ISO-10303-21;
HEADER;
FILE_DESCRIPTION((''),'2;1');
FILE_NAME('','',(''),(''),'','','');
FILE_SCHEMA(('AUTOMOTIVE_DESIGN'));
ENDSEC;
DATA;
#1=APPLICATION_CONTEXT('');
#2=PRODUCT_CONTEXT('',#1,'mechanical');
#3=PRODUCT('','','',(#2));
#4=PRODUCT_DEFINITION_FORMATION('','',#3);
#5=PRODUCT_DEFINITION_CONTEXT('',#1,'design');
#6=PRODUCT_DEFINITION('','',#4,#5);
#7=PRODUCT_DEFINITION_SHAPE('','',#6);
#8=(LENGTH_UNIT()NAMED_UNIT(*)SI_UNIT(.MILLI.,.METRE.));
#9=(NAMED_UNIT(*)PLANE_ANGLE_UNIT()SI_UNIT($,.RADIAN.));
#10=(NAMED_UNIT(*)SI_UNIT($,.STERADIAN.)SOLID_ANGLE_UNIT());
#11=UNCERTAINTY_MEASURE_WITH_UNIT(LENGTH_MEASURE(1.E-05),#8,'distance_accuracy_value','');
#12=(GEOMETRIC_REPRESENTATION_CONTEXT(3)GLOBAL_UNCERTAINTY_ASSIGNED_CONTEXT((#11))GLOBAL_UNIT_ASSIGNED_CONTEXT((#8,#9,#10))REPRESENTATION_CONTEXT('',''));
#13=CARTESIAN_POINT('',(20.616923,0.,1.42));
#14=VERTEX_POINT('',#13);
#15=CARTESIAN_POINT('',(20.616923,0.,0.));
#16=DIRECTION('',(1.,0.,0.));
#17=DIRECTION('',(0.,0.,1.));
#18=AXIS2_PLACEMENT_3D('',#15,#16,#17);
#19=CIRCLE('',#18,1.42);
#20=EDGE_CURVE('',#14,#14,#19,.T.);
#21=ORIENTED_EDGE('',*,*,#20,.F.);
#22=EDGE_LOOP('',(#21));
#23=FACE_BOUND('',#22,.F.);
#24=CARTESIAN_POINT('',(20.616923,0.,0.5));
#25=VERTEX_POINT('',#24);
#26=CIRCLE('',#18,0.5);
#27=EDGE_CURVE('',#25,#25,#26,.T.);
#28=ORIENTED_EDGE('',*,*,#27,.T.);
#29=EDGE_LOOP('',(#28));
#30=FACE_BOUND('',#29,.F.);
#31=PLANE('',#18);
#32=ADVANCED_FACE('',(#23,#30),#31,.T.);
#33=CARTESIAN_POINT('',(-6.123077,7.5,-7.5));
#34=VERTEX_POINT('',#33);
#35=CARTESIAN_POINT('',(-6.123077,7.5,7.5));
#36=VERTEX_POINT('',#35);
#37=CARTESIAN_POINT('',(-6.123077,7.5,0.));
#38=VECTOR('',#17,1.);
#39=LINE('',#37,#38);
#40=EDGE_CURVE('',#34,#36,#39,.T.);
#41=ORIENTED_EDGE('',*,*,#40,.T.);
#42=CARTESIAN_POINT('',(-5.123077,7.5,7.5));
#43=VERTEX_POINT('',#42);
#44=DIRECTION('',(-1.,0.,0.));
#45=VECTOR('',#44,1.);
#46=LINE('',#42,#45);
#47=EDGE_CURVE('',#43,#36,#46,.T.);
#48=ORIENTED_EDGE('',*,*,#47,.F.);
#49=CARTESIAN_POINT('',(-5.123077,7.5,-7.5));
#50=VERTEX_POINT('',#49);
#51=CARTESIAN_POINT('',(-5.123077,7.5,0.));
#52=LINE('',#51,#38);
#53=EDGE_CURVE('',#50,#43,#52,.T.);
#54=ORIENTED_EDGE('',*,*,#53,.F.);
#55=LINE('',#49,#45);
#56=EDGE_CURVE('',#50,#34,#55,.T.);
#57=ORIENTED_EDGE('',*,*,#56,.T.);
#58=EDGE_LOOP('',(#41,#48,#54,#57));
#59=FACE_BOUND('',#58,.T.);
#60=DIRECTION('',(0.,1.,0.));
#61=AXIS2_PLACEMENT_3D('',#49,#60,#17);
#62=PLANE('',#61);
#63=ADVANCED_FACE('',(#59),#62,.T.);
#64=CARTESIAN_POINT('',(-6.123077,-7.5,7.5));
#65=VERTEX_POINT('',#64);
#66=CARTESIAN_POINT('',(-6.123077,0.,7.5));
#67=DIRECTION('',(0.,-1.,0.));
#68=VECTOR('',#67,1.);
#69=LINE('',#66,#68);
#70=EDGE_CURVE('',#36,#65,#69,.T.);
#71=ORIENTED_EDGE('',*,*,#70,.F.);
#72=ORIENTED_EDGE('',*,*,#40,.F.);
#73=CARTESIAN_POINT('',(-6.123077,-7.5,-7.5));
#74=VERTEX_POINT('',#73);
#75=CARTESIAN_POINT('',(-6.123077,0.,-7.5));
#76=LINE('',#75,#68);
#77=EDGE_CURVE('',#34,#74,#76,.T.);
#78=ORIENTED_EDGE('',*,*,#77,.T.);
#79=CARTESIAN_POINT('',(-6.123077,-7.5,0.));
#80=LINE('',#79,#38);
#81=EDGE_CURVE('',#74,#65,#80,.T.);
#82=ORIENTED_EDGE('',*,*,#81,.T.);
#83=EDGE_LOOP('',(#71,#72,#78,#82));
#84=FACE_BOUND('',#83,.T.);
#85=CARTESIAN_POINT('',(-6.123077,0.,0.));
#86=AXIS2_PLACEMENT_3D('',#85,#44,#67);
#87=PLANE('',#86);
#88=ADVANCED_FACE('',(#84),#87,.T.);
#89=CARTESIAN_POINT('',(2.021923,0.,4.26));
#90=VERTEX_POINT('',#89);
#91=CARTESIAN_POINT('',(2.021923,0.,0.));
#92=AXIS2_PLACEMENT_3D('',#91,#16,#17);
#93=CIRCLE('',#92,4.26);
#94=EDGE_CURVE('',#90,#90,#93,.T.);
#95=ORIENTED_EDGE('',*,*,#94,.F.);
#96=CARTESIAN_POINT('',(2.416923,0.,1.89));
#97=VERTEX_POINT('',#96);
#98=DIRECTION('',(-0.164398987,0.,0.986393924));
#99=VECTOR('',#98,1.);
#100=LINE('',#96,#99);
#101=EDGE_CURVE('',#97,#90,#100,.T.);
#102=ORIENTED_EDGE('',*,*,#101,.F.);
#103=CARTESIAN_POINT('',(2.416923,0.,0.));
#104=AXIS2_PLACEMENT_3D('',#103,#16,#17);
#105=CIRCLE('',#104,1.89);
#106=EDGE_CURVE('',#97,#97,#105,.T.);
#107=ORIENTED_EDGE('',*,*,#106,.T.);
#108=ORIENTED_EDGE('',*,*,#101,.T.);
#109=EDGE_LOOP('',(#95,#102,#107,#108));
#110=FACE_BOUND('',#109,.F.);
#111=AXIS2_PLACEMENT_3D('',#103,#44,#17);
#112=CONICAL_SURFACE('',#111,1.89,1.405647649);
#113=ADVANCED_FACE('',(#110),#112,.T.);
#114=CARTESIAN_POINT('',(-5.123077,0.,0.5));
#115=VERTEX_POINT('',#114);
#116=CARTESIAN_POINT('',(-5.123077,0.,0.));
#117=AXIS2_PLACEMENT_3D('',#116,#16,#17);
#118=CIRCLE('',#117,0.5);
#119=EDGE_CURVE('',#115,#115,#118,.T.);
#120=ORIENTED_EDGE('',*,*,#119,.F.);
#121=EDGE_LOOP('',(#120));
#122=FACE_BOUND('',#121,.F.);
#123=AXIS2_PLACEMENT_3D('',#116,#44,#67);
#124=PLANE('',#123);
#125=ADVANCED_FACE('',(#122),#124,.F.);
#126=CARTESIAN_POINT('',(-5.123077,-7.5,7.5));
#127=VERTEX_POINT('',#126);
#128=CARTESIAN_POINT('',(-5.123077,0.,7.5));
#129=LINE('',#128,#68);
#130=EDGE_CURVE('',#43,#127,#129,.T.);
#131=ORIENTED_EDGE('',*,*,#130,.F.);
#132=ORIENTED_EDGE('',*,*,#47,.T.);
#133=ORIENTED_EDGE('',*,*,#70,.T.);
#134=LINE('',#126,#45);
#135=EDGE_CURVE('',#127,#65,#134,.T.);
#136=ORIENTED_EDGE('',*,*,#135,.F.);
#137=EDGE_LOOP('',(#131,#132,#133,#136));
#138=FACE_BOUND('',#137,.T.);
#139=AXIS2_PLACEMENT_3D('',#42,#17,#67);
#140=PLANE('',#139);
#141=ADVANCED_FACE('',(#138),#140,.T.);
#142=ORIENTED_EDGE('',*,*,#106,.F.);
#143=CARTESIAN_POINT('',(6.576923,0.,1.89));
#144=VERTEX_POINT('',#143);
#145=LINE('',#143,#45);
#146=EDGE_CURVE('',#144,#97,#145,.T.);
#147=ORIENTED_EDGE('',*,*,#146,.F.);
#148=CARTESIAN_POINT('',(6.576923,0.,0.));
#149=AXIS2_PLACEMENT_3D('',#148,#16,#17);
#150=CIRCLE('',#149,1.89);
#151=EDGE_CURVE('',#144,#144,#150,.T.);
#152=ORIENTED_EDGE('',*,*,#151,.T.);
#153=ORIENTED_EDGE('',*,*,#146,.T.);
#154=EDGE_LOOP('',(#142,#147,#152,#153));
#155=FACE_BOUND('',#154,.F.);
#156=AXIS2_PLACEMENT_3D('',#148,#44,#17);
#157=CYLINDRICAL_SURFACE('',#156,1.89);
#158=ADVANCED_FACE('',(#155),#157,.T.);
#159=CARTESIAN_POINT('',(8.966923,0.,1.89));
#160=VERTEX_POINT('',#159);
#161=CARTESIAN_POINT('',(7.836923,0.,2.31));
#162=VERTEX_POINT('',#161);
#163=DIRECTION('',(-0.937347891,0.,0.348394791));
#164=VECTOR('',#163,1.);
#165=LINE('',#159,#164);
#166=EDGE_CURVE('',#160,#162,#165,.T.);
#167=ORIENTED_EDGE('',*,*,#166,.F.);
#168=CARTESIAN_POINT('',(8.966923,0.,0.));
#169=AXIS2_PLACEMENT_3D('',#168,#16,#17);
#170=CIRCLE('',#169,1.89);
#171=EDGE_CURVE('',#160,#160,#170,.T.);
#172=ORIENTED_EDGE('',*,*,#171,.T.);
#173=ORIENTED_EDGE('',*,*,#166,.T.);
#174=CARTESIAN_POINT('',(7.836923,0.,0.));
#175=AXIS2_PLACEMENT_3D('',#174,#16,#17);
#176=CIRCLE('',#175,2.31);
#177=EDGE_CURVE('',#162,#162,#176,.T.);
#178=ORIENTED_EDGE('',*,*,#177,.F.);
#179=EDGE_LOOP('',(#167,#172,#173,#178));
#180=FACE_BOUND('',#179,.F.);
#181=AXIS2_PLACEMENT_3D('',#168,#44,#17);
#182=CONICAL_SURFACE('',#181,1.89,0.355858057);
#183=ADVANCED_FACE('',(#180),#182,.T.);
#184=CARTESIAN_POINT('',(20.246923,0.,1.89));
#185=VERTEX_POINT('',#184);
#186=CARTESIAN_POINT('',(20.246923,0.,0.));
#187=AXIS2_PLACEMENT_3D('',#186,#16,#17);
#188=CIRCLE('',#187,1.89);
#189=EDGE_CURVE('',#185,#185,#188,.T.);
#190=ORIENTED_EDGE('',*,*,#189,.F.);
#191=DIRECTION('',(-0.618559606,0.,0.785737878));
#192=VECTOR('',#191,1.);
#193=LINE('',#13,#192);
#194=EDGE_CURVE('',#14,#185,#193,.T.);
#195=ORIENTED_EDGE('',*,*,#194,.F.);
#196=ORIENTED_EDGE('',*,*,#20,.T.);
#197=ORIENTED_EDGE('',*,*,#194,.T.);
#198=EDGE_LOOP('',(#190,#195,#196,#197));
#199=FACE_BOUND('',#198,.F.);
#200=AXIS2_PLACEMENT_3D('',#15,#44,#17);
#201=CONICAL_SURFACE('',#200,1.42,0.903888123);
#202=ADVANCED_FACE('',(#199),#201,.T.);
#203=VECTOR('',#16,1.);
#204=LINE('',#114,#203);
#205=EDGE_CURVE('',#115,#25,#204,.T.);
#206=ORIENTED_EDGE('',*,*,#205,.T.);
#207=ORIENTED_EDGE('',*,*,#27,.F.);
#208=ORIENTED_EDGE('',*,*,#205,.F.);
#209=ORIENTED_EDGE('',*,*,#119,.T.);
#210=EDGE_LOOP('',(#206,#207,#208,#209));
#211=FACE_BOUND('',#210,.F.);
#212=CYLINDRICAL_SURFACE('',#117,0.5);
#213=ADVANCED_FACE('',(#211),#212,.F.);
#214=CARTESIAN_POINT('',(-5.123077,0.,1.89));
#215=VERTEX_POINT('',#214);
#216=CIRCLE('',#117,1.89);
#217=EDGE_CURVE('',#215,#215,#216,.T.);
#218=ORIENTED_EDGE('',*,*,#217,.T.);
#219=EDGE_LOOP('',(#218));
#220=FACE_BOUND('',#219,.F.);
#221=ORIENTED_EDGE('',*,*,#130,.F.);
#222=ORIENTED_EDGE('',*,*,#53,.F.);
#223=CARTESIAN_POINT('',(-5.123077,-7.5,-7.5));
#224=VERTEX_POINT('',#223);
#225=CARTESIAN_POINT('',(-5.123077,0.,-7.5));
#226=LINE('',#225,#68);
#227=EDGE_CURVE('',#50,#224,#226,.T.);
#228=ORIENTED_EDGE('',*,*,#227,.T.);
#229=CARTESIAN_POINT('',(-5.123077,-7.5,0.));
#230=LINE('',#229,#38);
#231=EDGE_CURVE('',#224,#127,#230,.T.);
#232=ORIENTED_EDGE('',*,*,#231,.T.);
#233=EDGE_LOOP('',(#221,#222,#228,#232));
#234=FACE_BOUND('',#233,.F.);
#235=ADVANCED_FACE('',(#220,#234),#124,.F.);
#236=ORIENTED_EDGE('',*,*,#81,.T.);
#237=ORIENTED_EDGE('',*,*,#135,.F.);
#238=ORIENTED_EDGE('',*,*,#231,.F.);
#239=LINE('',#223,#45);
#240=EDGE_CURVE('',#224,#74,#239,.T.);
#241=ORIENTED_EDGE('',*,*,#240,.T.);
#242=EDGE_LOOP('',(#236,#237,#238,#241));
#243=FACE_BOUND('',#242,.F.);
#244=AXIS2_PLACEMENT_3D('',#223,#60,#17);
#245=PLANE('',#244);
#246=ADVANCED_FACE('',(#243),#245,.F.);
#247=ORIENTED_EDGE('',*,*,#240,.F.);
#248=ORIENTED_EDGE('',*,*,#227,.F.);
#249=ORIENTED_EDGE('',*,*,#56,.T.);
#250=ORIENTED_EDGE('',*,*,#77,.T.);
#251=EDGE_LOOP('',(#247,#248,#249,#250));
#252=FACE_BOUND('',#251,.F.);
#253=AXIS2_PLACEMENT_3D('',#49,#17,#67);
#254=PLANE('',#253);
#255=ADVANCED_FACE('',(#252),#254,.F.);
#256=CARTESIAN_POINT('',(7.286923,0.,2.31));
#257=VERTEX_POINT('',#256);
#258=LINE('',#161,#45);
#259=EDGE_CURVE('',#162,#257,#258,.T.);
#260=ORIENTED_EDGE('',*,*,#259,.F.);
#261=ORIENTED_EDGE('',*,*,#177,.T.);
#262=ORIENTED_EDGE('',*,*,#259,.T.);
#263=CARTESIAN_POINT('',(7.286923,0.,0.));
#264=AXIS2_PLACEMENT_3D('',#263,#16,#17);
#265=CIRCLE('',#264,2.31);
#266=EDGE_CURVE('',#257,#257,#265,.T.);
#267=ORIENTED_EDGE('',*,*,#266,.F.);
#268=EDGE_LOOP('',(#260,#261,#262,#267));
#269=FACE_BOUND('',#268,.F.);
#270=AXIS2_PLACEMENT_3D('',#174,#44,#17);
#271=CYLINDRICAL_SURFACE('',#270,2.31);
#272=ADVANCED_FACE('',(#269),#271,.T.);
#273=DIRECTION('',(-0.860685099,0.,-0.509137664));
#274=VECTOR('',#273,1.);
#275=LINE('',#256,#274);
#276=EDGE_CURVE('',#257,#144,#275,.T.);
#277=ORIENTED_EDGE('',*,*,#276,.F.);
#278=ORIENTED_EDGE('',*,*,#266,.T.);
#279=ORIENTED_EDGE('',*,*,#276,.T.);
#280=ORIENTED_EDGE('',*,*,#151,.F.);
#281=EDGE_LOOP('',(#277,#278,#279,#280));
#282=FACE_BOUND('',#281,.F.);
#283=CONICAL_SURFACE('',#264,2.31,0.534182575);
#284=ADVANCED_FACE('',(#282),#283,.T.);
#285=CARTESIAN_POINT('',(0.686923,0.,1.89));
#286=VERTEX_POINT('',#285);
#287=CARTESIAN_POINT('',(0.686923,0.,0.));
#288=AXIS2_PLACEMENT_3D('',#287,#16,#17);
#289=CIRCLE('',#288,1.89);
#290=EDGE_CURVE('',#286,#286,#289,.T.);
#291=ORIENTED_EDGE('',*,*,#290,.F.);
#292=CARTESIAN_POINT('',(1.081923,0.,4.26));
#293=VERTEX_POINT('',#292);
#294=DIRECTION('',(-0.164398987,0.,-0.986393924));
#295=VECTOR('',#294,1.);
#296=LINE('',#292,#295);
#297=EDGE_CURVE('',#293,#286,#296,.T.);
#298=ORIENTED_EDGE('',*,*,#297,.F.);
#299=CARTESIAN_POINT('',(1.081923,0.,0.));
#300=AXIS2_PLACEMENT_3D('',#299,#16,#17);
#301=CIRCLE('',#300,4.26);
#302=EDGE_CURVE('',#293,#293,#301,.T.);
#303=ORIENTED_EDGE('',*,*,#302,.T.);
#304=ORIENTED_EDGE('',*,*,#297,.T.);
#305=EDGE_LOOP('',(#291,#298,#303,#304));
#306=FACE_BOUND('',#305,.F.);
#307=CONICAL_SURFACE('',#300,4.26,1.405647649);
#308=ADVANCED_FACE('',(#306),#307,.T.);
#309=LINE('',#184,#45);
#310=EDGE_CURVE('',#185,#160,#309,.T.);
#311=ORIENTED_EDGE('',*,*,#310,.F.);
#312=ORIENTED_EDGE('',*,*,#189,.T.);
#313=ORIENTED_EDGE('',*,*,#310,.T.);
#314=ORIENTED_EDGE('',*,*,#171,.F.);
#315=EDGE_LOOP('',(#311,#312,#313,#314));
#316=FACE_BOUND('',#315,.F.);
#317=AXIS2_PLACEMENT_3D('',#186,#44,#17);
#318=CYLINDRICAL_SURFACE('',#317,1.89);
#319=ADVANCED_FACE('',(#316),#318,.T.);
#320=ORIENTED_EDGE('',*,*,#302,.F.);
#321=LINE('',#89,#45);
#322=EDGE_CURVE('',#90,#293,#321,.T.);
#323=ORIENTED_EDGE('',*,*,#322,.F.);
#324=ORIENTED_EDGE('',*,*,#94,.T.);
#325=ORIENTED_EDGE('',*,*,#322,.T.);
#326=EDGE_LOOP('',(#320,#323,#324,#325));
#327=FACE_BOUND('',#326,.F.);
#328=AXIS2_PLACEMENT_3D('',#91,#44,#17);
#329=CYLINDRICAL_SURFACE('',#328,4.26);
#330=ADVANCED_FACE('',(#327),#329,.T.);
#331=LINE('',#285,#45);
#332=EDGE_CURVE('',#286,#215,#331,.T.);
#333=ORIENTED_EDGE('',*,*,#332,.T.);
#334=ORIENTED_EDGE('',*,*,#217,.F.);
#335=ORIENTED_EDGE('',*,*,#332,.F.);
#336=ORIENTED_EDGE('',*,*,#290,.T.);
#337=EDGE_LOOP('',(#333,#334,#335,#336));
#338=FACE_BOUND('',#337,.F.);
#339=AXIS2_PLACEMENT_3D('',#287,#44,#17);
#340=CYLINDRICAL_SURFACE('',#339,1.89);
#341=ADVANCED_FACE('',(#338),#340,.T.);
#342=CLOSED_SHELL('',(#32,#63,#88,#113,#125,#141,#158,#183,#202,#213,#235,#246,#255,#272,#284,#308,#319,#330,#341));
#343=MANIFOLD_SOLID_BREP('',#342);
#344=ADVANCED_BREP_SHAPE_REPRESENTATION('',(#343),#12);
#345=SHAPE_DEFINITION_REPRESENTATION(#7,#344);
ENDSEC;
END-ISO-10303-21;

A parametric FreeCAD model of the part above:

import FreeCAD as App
import Part
import Sketcher
Q = App.Units.Quantity


def add_polygon(sketch, points):
    """Adds a closed chain of lines whose ends are joined by coincident constraints."""
    first, n = sketch.GeometryCount, len(points)
    for a, b in zip(points, points[1:] + points[:1]):
        sketch.addGeometry(Part.LineSegment(App.Vector(*a, 0), App.Vector(*b, 0)), False)
    for i in range(n):
        sketch.addConstraint(Sketcher.Constraint("Coincident", first + i, 2, first + (i + 1) % n, 1))

doc = App.newDocument("Part")
params = doc.addObject("Spreadsheet::Sheet", "Params")
for row, (alias, value) in enumerate([
    ("sketch1_width", "25.74 mm"),
    ("sketch1_width2", "11.28 mm"),
    ("sketch1_width3", "0.55 mm"),
    ("sketch1_width4", "4.16 mm"),
    ("sketch1_width5", "0.94 mm"),
    ("revolution_angle", "360 deg"),
    ("sketch2_width", "15 mm"),
    ("pad1_length", "1 mm"),
], start=1):
    params.set(f"A{row}", alias)
    params.set(f"B{row}", "=" + value)
    params.setAlias(f"B{row}", alias)

body = doc.addObject("PartDesign::Body", "Body")

# Sketch on XZ plane
sketch1 = body.newObject("Sketcher::SketchObject", "Sketch")
sketch1.AttachmentSupport = (doc.getObject("XZ_Plane"), [""])
sketch1.MapMode = "FlatFace"
add_polygon(sketch1, [(-5.1, 1.9), (-5.1, 0.5), (20.6, 0.5), (20.6, 1.4), (20.2, 1.9), (9, 1.9), (7.8, 2.3), (7.3, 2.3), (6.6, 1.9), (2.4, 1.9), (2, 4.3), (1.1, 4.3), (0.7, 1.9)])  # lines 0-12
sketch1.addConstraint(Sketcher.Constraint("Vertical", 0))
sketch1.addConstraint(Sketcher.Constraint("Horizontal", 1))
sketch1.addConstraint(Sketcher.Constraint("Vertical", 2))
sketch1.addConstraint(Sketcher.Constraint("Horizontal", 4))
sketch1.addConstraint(Sketcher.Constraint("Horizontal", 6))
sketch1.addConstraint(Sketcher.Constraint("Horizontal", 8))
sketch1.addConstraint(Sketcher.Constraint("Horizontal", 10))
sketch1.addConstraint(Sketcher.Constraint("Horizontal", 12))
sketch1.addConstraint(Sketcher.Constraint("Horizontal", 4, 2, 7, 2))
sketch1.addConstraint(Sketcher.Constraint("Horizontal", 8, 2, 11, 2))
sketch1.addConstraint(Sketcher.Constraint("Equal", 9, 11))
sketch1.addConstraint(Sketcher.Constraint("DistanceX", 1, 1, 1, 2, Q("25.74 mm")))
sketch1.addConstraint(Sketcher.Constraint("DistanceX", 4, 2, 4, 1, Q("11.28 mm")))
sketch1.addConstraint(Sketcher.Constraint("DistanceX", 6, 2, 6, 1, Q("0.55 mm")))
sketch1.addConstraint(Sketcher.Constraint("DistanceX", 8, 2, 8, 1, Q("4.16 mm")))
sketch1.addConstraint(Sketcher.Constraint("DistanceX", 10, 2, 10, 1, Q("0.94 mm")))
sketch1.addConstraint(Sketcher.Constraint("DistanceX", 12, 2, 12, 1, Q("5.81 mm")))
sketch1.addConstraint(Sketcher.Constraint("DistanceY", 0, 2, 0, 1, Q("1.39 mm")))
sketch1.addConstraint(Sketcher.Constraint("DistanceY", 2, 1, 2, 2, Q("0.92 mm")))
sketch1.addConstraint(Sketcher.Constraint("DistanceY", -1, 1, 0, 2, Q("0.5 mm")))
sketch1.addConstraint(Sketcher.Constraint("DistanceX", 0, 2, 7, 2, Q("11.7 mm")))
sketch1.addConstraint(Sketcher.Constraint("DistanceY", -1, 1, 5, 2, Q("2.31 mm")))
sketch1.addConstraint(Sketcher.Constraint("DistanceY", -1, 1, 9, 2, Q("4.26 mm")))
sketch1.addConstraint(Sketcher.Constraint("DistanceX", 3, 2, 2, 2, Q("0.37 mm")))
sketch1.addConstraint(Sketcher.Constraint("DistanceX", 5, 2, 4, 2, Q("1.13 mm")))
sketch1.addConstraint(Sketcher.Constraint("DistanceX", 0, 2, -1, 1, Q("5.123077 mm")))
sketch1.setExpression("Constraints[24]", "Params.sketch1_width")
sketch1.setExpression("Constraints[25]", "Params.sketch1_width2")
sketch1.setExpression("Constraints[26]", "Params.sketch1_width3")
sketch1.setExpression("Constraints[27]", "Params.sketch1_width4")
sketch1.setExpression("Constraints[28]", "Params.sketch1_width5")
revolution = body.newObject("PartDesign::Revolution", "Revolution")
revolution.Profile = sketch1
revolution.ReferenceAxis = (sketch1, ["H_Axis"])
revolution.setExpression("Angle", "Params.revolution_angle")

# Sketch on YZ plane
sketch2 = body.newObject("Sketcher::SketchObject", "Sketch001")
sketch2.AttachmentSupport = (doc.getObject("YZ_Plane"), [""])
sketch2.MapMode = "FlatFace"
sketch2.AttachmentOffset = App.Placement(App.Vector(0, 0, -5.123077), App.Rotation())
add_polygon(sketch2, [(8, 8), (8, -8), (-8, -8), (-8, 8)])  # lines 0-3
sketch2.addConstraint(Sketcher.Constraint("Vertical", 0))
sketch2.addConstraint(Sketcher.Constraint("Horizontal", 1))
sketch2.addConstraint(Sketcher.Constraint("Vertical", 2))
sketch2.addConstraint(Sketcher.Constraint("Horizontal", 3))
sketch2.addConstraint(Sketcher.Constraint("Symmetric", 0, 2, 2, 2, -1, 1))
sketch2.addConstraint(Sketcher.Constraint("Equal", 3, 0))
sketch2.addConstraint(Sketcher.Constraint("DistanceX", 1, 2, 1, 1, Q("15 mm")))
sketch2.setExpression("Constraints[10]", "Params.sketch2_width")
pad1 = body.newObject("PartDesign::Pad", "Pad")
pad1.Profile = sketch2
pad1.setExpression("Length", "Params.pad1_length")
pad1.Reversed = True

doc.recompute()
